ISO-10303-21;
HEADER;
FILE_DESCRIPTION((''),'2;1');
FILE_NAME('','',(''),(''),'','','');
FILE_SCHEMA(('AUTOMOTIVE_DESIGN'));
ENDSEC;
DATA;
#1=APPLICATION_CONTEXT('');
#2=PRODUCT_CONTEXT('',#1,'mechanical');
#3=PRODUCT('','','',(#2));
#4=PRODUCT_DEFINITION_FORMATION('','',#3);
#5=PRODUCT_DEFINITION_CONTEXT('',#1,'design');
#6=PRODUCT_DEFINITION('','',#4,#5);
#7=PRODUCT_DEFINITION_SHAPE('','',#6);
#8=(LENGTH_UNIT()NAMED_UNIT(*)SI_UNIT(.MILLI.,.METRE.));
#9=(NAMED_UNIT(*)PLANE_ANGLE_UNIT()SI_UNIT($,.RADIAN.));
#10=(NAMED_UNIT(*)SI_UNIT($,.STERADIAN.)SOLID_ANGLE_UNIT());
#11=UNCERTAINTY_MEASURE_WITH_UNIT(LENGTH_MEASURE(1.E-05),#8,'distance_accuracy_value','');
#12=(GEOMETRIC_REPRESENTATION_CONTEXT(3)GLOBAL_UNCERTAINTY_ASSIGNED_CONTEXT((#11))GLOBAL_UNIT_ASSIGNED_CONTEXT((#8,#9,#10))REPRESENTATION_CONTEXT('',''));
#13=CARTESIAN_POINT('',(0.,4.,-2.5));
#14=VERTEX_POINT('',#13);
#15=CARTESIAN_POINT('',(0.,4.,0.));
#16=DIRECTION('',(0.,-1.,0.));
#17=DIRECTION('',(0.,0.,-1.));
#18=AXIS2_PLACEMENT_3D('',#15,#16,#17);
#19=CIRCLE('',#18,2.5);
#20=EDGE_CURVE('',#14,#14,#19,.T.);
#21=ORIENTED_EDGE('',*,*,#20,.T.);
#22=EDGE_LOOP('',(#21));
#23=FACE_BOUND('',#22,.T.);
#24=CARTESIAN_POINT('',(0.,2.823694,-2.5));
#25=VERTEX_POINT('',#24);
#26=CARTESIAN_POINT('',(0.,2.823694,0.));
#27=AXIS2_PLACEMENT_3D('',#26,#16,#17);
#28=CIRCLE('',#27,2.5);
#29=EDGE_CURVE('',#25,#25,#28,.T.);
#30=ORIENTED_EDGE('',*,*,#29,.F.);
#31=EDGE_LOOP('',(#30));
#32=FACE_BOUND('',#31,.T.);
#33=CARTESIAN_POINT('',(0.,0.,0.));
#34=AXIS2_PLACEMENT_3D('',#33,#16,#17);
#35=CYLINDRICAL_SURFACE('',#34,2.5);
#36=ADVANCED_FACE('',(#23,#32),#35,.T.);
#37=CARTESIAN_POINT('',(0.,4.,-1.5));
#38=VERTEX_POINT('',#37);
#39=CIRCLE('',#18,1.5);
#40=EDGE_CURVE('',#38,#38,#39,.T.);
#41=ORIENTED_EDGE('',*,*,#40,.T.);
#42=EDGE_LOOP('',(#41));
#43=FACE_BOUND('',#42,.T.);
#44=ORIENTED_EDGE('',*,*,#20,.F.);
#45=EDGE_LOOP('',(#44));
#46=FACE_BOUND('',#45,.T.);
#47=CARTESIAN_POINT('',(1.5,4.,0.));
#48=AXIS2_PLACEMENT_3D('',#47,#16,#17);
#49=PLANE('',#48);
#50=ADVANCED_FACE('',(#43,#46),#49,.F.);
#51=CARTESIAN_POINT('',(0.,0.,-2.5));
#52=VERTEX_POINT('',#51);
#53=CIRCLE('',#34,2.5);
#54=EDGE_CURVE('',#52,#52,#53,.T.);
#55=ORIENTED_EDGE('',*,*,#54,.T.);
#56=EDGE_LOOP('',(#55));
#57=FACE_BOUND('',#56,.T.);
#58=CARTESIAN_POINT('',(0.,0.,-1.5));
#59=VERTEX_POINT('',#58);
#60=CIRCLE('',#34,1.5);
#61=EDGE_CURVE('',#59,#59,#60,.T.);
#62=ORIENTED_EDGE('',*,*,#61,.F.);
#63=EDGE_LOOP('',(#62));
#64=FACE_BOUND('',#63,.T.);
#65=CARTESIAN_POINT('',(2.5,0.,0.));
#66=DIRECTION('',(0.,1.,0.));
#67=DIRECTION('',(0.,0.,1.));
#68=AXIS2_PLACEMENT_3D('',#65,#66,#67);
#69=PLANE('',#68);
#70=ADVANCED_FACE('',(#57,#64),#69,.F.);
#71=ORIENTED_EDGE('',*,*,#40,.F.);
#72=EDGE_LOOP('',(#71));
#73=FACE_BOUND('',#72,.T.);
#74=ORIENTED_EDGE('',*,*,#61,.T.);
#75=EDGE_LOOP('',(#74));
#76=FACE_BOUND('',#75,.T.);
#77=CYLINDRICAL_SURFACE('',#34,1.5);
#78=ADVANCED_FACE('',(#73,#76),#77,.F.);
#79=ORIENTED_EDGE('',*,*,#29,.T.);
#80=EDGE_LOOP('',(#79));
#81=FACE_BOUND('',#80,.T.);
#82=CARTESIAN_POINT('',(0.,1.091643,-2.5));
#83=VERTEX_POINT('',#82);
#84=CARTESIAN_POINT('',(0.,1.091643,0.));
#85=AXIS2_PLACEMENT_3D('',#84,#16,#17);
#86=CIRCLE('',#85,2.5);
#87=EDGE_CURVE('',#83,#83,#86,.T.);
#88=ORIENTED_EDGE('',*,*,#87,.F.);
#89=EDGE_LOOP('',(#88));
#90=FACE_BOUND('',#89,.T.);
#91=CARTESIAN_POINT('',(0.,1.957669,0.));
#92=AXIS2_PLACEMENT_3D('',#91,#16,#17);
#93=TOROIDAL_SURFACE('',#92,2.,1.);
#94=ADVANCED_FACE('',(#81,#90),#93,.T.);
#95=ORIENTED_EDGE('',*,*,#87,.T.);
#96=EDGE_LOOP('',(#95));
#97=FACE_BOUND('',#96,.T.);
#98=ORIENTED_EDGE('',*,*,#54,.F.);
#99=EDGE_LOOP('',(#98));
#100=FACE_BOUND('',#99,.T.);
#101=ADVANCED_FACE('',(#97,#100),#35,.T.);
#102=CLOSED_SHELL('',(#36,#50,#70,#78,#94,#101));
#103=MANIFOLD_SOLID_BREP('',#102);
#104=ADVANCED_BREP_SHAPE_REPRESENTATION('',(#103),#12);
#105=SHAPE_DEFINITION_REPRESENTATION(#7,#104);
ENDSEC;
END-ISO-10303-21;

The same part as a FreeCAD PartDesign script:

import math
import FreeCAD as App
import Part
import Sketcher
from FreeCAD import Vector
Q = App.Units.Quantity

doc = App.newDocument("Part")
body = doc.addObject("PartDesign::Body", "Body")

# Sketch on XY plane
sketch1 = doc.addObject("Sketcher::SketchObject", "Sketch")
body.addObject(sketch1)
sketch1.AttachmentSupport = (doc.XY_Plane, [""])
sketch1.MapMode = "FlatFace"
sketch1.addGeometry([
    Part.LineSegment(Vector(1.5, 4, 0), Vector(1.5, 0, 0)),  # 0
    Part.LineSegment(Vector(1.5, 0, 0), Vector(2.5, 0, 0)),  # 1
    Part.LineSegment(Vector(2.5, 0, 0), Vector(2.5, 1.1, 0)),  # 2
    Part.ArcOfCircle(Part.Circle(Vector(2, 2, 0), Vector(0, 0, 1), 1), math.radians(-60), math.radians(60)),  # 3
    Part.LineSegment(Vector(2.5, 2.8, 0), Vector(2.5, 4, 0)),  # 4
    Part.LineSegment(Vector(2.5, 4, 0), Vector(1.5, 4, 0)),  # 5
], False)
sketch1.addConstraint([
    Sketcher.Constraint("Coincident", 0, 2, 1, 1),
    Sketcher.Constraint("Coincident", 1, 2, 2, 1),
    Sketcher.Constraint("Coincident", 2, 2, 3, 1),
    Sketcher.Constraint("Coincident", 3, 2, 4, 1),
    Sketcher.Constraint("Coincident", 4, 2, 5, 1),
    Sketcher.Constraint("Coincident", 5, 2, 0, 1),
    Sketcher.Constraint("Vertical", 0),
    Sketcher.Constraint("Horizontal", 1),
    Sketcher.Constraint("Vertical", 2),
    Sketcher.Constraint("Vertical", 4),
    Sketcher.Constraint("Horizontal", 5),
    Sketcher.Constraint("PointOnObject", 0, 2, -1),
    Sketcher.Constraint("Vertical", 2, 2, 3, 2),
    Sketcher.Constraint("Radius", 3, Q("1 mm")),
    Sketcher.Constraint("DistanceX", 1, 1, 1, 2, Q("1 mm")),
    Sketcher.Constraint("DistanceY", 0, 2, 0, 1, Q("4 mm")),
    Sketcher.Constraint("DistanceX", -1, 1, 3, 3, Q("2 mm")),
    Sketcher.Constraint("DistanceX", -1, 1, 0, 2, Q("1.5 mm")),
    Sketcher.Constraint("DistanceY", 2, 1, 2, 2, Q("1.091643 mm")),
])
revolution = doc.addObject("PartDesign::Revolution", "Revolution")
body.addObject(revolution)
revolution.Profile = sketch1
revolution.ReferenceAxis = (sketch1, ["V_Axis"])
revolution.Angle = 360

doc.recompute()
